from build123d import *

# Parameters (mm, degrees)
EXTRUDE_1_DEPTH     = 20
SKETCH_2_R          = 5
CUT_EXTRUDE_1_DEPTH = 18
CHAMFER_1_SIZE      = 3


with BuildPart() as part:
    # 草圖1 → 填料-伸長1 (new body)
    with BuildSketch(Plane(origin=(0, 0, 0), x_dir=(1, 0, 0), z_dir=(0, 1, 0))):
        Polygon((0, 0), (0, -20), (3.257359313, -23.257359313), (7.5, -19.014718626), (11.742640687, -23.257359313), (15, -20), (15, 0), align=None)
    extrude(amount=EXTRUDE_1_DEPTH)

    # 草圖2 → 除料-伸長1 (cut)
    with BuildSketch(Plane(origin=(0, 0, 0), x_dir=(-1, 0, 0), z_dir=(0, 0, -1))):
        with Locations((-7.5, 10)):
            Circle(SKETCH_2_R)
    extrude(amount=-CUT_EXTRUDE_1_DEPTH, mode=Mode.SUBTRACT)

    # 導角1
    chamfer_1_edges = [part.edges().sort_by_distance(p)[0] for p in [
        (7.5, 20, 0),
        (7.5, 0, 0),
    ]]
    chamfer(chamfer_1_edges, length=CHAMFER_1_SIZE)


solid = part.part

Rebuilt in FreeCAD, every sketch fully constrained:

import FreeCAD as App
import Part
import Sketcher

V = App.Vector


def edges_at(feature, points):
    """Names of the edges that pass closest to the given points."""
    edges = feature.Shape.Edges
    near = lambda p: min(range(len(edges)), key=lambda i: edges[i].distToShape(Part.Vertex(*p))[0])
    return sorted({f"Edge{near(p) + 1}" for p in points})

doc = App.newDocument("Part")
body = doc.addObject("PartDesign::Body", "Body")

sketch1 = body.newObject("Sketcher::SketchObject", "Sketch")
sketch1.AttachmentSupport = (doc.getObject("XZ_Plane"), [""])
sketch1.MapMode = "FlatFace"
sketch1.addGeometry([
    Part.LineSegment(V(0, 0, 0), V(0, 20, 0)),
    Part.LineSegment(V(0, 20, 0), V(3.257359, 23.257359, 0)),
    Part.LineSegment(V(3.257359, 23.257359, 0), V(7.5, 19.014719, 0)),
    Part.LineSegment(V(7.5, 19.014719, 0), V(11.742641, 23.257359, 0)),
    Part.LineSegment(V(11.742641, 23.257359, 0), V(15, 20, 0)),
    Part.LineSegment(V(15, 20, 0), V(15, 0, 0)),
    Part.LineSegment(V(15, 0, 0), V(0, 0, 0)),
], False)
sketch1.addConstraint([
    Sketcher.Constraint("Coincident", 0, 2, 1, 1),
    Sketcher.Constraint("Coincident", 1, 2, 2, 1),
    Sketcher.Constraint("Coincident", 2, 2, 3, 1),
    Sketcher.Constraint("Coincident", 3, 2, 4, 1),
    Sketcher.Constraint("Coincident", 4, 2, 5, 1),
    Sketcher.Constraint("Coincident", 5, 2, 6, 1),
    Sketcher.Constraint("Coincident", 6, 2, 0, 1),
    Sketcher.Constraint("Vertical", 0),
    Sketcher.Constraint("Vertical", 5),
    Sketcher.Constraint("Horizontal", 6),
    Sketcher.Constraint("Coincident", 6, 2, -1, 1),
    Sketcher.Constraint("Perpendicular", 1, 2),
    Sketcher.Constraint("Perpendicular", 2, 3),
    Sketcher.Constraint("Perpendicular", 3, 4),
    Sketcher.Constraint("Horizontal", 1, 2, 3, 2),
    Sketcher.Constraint("Horizontal", 0, 2, 4, 2),
    Sketcher.Constraint("Equal", 2, 3),
    Sketcher.Constraint("DistanceX", 6, 2, 6, 1, 15.0),
    Sketcher.Constraint("DistanceY", 0, 1, 0, 2, 20.0),
    Sketcher.Constraint("Distance", 2, 6.0),
])
pad1 = body.newObject("PartDesign::Pad", "Pad")
pad1.Profile = sketch1
pad1.Length = 20
pad1.Reversed = True

sketch2 = body.newObject("Sketcher::SketchObject", "Sketch001")
sketch2.AttachmentSupport = (doc.getObject("XY_Plane"), [""])
sketch2.MapMode = "FlatFace"
sketch2.addGeometry(Part.Circle(V(7.5, 10, 0), V(0, 0, 1), 5), False)
sketch2.addConstraint([
    Sketcher.Constraint("Diameter", 0, 10.0),
    Sketcher.Constraint("DistanceY", -1, 1, 0, 3, 10.0),
    Sketcher.Constraint("DistanceX", -1, 1, 0, 3, 7.5),
])
pocket1 = body.newObject("PartDesign::Pocket", "Pocket")
pocket1.Profile = sketch2
pocket1.Length = 18
pocket1.Reversed = True
doc.recompute()

chamfer = body.newObject("PartDesign::Chamfer", "Chamfer")
chamfer.Base = (pocket1, edges_at(pocket1, [(7.5, 20, 0), (7.5, 0, 0)]))
chamfer.Size = 3

doc.recompute()
